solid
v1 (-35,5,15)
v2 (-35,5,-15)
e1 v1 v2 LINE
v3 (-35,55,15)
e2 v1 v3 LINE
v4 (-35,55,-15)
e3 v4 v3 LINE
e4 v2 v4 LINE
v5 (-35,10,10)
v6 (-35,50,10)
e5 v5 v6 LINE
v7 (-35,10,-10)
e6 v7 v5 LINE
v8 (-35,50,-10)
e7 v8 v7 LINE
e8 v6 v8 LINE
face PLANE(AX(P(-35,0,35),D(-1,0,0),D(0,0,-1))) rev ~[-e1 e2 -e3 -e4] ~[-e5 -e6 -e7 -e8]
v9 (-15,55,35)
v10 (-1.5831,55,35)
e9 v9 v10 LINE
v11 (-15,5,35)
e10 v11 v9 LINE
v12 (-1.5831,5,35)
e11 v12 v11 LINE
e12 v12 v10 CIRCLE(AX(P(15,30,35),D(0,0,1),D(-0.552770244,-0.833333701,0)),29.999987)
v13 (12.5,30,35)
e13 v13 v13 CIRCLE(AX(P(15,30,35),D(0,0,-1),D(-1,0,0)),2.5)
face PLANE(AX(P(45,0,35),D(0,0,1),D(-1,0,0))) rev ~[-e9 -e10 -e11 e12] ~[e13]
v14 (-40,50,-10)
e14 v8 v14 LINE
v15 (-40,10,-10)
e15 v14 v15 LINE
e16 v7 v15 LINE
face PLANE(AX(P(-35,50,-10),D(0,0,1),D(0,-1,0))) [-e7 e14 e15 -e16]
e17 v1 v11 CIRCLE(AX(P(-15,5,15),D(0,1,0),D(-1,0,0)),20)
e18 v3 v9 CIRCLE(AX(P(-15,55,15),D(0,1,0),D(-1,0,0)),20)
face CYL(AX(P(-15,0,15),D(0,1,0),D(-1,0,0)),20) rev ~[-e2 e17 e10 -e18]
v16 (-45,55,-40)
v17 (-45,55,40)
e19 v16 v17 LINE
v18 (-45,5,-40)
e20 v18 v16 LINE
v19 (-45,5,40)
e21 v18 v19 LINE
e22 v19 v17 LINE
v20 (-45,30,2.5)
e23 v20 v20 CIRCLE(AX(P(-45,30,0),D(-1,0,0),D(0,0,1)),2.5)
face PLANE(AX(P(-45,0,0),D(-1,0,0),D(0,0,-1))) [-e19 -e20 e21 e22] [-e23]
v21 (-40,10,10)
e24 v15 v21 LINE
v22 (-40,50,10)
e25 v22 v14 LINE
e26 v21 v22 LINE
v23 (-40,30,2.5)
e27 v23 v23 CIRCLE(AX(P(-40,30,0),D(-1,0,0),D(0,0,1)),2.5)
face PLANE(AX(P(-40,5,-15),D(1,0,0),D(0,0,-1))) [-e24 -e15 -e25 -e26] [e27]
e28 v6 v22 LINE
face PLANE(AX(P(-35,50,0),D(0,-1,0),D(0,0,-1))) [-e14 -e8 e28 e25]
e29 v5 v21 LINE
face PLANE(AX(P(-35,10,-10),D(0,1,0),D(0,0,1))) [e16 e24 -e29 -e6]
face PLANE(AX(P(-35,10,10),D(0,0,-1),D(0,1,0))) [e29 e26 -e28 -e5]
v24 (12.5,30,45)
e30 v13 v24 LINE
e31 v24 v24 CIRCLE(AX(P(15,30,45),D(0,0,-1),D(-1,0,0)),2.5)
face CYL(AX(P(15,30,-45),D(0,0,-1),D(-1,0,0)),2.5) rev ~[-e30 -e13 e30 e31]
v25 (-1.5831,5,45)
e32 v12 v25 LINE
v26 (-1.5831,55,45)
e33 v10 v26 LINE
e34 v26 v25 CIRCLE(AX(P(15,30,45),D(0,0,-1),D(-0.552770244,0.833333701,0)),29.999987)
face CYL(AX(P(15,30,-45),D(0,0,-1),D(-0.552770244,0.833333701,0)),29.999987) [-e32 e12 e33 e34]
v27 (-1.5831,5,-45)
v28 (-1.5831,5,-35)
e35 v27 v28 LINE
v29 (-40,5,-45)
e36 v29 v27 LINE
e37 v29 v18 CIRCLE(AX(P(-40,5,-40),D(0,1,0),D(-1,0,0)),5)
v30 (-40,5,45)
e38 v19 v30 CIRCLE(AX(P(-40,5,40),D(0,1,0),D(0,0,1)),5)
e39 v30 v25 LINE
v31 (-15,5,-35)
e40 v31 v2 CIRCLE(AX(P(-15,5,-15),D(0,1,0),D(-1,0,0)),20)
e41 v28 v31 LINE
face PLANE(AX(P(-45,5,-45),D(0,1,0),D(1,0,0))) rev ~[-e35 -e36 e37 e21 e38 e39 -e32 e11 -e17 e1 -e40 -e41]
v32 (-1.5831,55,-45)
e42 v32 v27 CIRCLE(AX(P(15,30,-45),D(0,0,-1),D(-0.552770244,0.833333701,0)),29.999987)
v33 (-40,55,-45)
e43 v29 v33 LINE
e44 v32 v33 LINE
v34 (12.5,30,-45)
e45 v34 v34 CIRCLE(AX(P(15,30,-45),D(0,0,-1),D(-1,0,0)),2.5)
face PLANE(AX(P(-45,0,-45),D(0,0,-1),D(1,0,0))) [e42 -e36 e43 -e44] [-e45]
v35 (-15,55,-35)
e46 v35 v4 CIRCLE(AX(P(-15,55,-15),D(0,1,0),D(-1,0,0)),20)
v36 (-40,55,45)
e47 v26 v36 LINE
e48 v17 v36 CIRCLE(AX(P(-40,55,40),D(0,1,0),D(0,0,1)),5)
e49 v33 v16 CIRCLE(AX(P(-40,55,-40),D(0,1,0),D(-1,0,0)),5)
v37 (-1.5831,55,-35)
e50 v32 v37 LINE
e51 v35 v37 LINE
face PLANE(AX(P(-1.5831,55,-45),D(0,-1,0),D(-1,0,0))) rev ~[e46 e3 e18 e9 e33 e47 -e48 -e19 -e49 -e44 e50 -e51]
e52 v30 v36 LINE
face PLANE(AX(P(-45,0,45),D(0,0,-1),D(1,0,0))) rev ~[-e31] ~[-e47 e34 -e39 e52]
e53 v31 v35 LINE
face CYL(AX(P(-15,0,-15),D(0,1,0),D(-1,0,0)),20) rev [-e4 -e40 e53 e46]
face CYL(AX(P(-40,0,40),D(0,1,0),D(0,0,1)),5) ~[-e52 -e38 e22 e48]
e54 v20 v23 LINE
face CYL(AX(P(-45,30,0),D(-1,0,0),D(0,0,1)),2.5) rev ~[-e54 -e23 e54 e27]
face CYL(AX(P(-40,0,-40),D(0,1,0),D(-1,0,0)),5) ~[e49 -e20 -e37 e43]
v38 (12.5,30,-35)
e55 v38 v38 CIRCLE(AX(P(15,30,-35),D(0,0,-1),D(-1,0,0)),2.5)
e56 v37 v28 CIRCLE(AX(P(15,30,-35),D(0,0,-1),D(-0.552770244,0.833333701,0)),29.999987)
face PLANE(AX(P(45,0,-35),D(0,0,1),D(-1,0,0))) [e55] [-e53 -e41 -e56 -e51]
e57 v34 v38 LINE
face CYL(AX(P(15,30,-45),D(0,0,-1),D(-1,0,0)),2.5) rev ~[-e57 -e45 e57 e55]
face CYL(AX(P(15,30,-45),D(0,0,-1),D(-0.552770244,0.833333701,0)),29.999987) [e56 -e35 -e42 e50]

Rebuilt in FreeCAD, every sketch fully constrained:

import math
import FreeCAD as App
import Part
import Sketcher
from FreeCAD import Vector


def edges_at(feature, points):
    """Names of the edges that pass closest to the given points."""
    edges = feature.Shape.Edges
    near = lambda p: min(range(len(edges)), key=lambda i: edges[i].distToShape(Part.Vertex(*p))[0])
    return sorted({f"Edge{near(p) + 1}" for p in points})


def add_polygon(sketch, points):
    """Adds a closed chain of lines whose ends are joined by coincident constraints."""
    first, n = sketch.GeometryCount, len(points)
    for a, b in zip(points, points[1:] + points[:1]):
        sketch.addGeometry(Part.LineSegment(App.Vector(*a, 0), App.Vector(*b, 0)), False)
    for i in range(n):
        sketch.addConstraint(Sketcher.Constraint("Coincident", first + i, 2, first + (i + 1) % n, 1))

doc = App.newDocument("Part")
params = doc.addObject("Spreadsheet::Sheet", "Params")
for row, (alias, value) in enumerate([
    ("sketch1_height", "10 mm"),
    ("pad1_length", "60 mm"),
    ("fillet_radius", "20 mm"),
    ("fillet2_radius", "5 mm"),
    ("sketch2_height", "5 mm"),
    ("sketch2_radius", "30 mm"),
    ("sketch2_width", "60 mm"),
    ("pocket1_length", "161.25 mm"),
    ("sketch3_diameter", "5 mm"),
    ("pocket2_length", "161.25 mm"),
    ("sketch4_diameter", "5 mm"),
    ("pocket3_length", "161.25 mm"),
    ("sketch5_width", "40 mm"),
    ("sketch5_height", "20 mm"),
    ("pocket4_length", "5 mm"),
], start=1):
    params.set(f"A{row}", alias)
    params.set(f"B{row}", "=" + value)
    params.setAlias(f"B{row}", alias)

body = doc.addObject("PartDesign::Body", "Body")

# Sketch on XZ plane
sketch1 = body.newObject("Sketcher::SketchObject", "Sketch")
sketch1.AttachmentSupport = (doc.getObject("XZ_Plane"), [""])
sketch1.MapMode = "FlatFace"
add_polygon(sketch1, [(-45, 45), (45, 45), (45, 35), (-35, 35), (-35, -35), (45, -35), (45, -45), (-45, -45)])  # lines 0-7
sketch1.addConstraint(Sketcher.Constraint("Horizontal", 0))
sketch1.addConstraint(Sketcher.Constraint("Vertical", 1))
sketch1.addConstraint(Sketcher.Constraint("Horizontal", 2))
sketch1.addConstraint(Sketcher.Constraint("Vertical", 3))
sketch1.addConstraint(Sketcher.Constraint("Horizontal", 4))
sketch1.addConstraint(Sketcher.Constraint("Vertical", 5))
sketch1.addConstraint(Sketcher.Constraint("Horizontal", 6))
sketch1.addConstraint(Sketcher.Constraint("Vertical", 7))
sketch1.addConstraint(Sketcher.Constraint("Symmetric", 0, 2, 6, 2, -1, 1))
sketch1.addConstraint(Sketcher.Constraint("Symmetric", 1, 2, 4, 2, -1))
sketch1.addConstraint(Sketcher.Constraint("Equal", 6, 7))
sketch1.addConstraint(Sketcher.Constraint("DistanceY", 1, 2, 1, 1, 10.0))
sketch1.addConstraint(Sketcher.Constraint("DistanceX", -1, 1, 0, 2, 45.0))
sketch1.addConstraint(Sketcher.Constraint("DistanceX", 6, 2, 3, 2, 10.0))
sketch1.setExpression("Constraints[19]", "Params.sketch1_height")
pad1 = body.newObject("PartDesign::Pad", "Pad")
pad1.Profile = sketch1
pad1.setExpression("Length", "Params.pad1_length")
pad1.Reversed = True
doc.recompute()

fillet = body.newObject("PartDesign::Fillet", "Fillet")
fillet.Base = (pad1, edges_at(pad1, [(-35, 30, 35), (-35, 30, -35)]))
fillet.setExpression("Radius", "Params.fillet_radius")
doc.recompute()

fillet2 = body.newObject("PartDesign::Fillet", "Fillet001")
fillet2.Base = (fillet, edges_at(fillet, [(-45, 30, 45), (-45, 30, -45)]))
fillet2.setExpression("Radius", "Params.fillet2_radius")

# Sketch on XY plane
sketch2 = body.newObject("Sketcher::SketchObject", "Sketch001")
sketch2.AttachmentSupport = (doc.getObject("XY_Plane"), [""])
sketch2.MapMode = "FlatFace"
sketch2.AttachmentOffset = App.Placement(Vector(0, 0, -45), App.Rotation())
sketch2.addGeometry(Part.LineSegment(Vector(45, 30, 0), Vector(45, 0, 0)), False)
sketch2.addGeometry(Part.LineSegment(Vector(45, 0, 0), Vector(15, 0, 0)), False)
sketch2.addGeometry(Part.ArcOfCircle(Part.Circle(Vector(15, 30, 0), Vector(0, 0, 1), 30), math.radians(-90), math.radians(0)), False)
sketch2.addGeometry(Part.LineSegment(Vector(45, 60, 0), Vector(45, 30, 0)), False)
sketch2.addGeometry(Part.ArcOfCircle(Part.Circle(Vector(15, 30, 0), Vector(0, 0, 1), 30), math.radians(0), math.radians(90)), False)
sketch2.addGeometry(Part.LineSegment(Vector(15, 60, 0), Vector(45, 60, 0)), False)
sketch2.addGeometry(Part.ArcOfCircle(Part.Circle(Vector(15, 30, 0), Vector(0, 0, 1), 30), math.radians(-124), math.radians(-90)), False)
sketch2.addGeometry(Part.LineSegment(Vector(15, 0, 0), Vector(-45, 0, 0)), False)
sketch2.addGeometry(Part.LineSegment(Vector(-45, 0, 0), Vector(-45, 5, 0)), False)
sketch2.addGeometry(Part.LineSegment(Vector(-45, 5, 0), Vector(-2, 5, 0)), False)
sketch2.addGeometry(Part.LineSegment(Vector(-45, 60, 0), Vector(15, 60, 0)), False)
sketch2.addGeometry(Part.ArcOfCircle(Part.Circle(Vector(15, 30, 0), Vector(0, 0, 1), 30), math.radians(90), math.radians(124)), False)
sketch2.addGeometry(Part.LineSegment(Vector(-2, 55, 0), Vector(-45, 55, 0)), False)
sketch2.addGeometry(Part.LineSegment(Vector(-45, 55, 0), Vector(-45, 60, 0)), False)
sketch2.addConstraint(Sketcher.Constraint("Coincident", 0, 2, 1, 1))
sketch2.addConstraint(Sketcher.Constraint("Tangent", 1, 2, 2, 1))
sketch2.addConstraint(Sketcher.Constraint("Tangent", 2, 2, 0, 1))
sketch2.addConstraint(Sketcher.Constraint("Tangent", 3, 2, 4, 1))
sketch2.addConstraint(Sketcher.Constraint("Tangent", 4, 2, 5, 1))
sketch2.addConstraint(Sketcher.Constraint("Coincident", 5, 2, 3, 1))
sketch2.addConstraint(Sketcher.Constraint("Tangent", 6, 2, 7, 1))
sketch2.addConstraint(Sketcher.Constraint("Coincident", 7, 2, 8, 1))
sketch2.addConstraint(Sketcher.Constraint("Coincident", 8, 2, 9, 1))
sketch2.addConstraint(Sketcher.Constraint("Coincident", 9, 2, 6, 1))
sketch2.addConstraint(Sketcher.Constraint("Tangent", 10, 2, 11, 1))
sketch2.addConstraint(Sketcher.Constraint("Coincident", 11, 2, 12, 1))
sketch2.addConstraint(Sketcher.Constraint("Coincident", 12, 2, 13, 1))
sketch2.addConstraint(Sketcher.Constraint("Coincident", 13, 2, 10, 1))
sketch2.addConstraint(Sketcher.Constraint("Vertical", 0))
sketch2.addConstraint(Sketcher.Constraint("Horizontal", 1))
sketch2.addConstraint(Sketcher.Constraint("Vertical", 3))
sketch2.addConstraint(Sketcher.Constraint("Horizontal", 5))
sketch2.addConstraint(Sketcher.Constraint("Horizontal", 7))
sketch2.addConstraint(Sketcher.Constraint("Vertical", 8))
sketch2.addConstraint(Sketcher.Constraint("Horizontal", 9))
sketch2.addConstraint(Sketcher.Constraint("Horizontal", 10))
sketch2.addConstraint(Sketcher.Constraint("Horizontal", 12))
sketch2.addConstraint(Sketcher.Constraint("Vertical", 13))
sketch2.addConstraint(Sketcher.Constraint("Coincident", 4, 3, 2, 3))
sketch2.addConstraint(Sketcher.Constraint("Coincident", 6, 3, 2, 3))
sketch2.addConstraint(Sketcher.Constraint("Coincident", 11, 3, 2, 3))
sketch2.addConstraint(Sketcher.Constraint("Equal", 2, 4))
sketch2.addConstraint(Sketcher.Constraint("Equal", 4, 6))
sketch2.addConstraint(Sketcher.Constraint("Equal", 6, 11))
sketch2.addConstraint(Sketcher.Constraint("Symmetric", 0, 2, 7, 2, -1, 1))
sketch2.addConstraint(Sketcher.Constraint("Vertical", 9, 2, 11, 2))
sketch2.addConstraint(Sketcher.Constraint("Vertical", 8, 2, 12, 2))
sketch2.addConstraint(Sketcher.Constraint("DistanceY", 8, 1, 8, 2, 5.0))
sketch2.addConstraint(Sketcher.Constraint("Radius", 2, 30.0))
sketch2.addConstraint(Sketcher.Constraint("DistanceX", 7, 2, 7, 1, 60.0))
sketch2.setExpression("Constraints[33]", "Params.sketch2_height")
sketch2.setExpression("Constraints[34]", "Params.sketch2_radius")
sketch2.setExpression("Constraints[35]", "Params.sketch2_width")
pocket1 = body.newObject("PartDesign::Pocket", "Pocket")
pocket1.Profile = sketch2
pocket1.setExpression("Length", "Params.pocket1_length")
pocket1.Reversed = True

# Sketch on XY plane
sketch3 = body.newObject("Sketcher::SketchObject", "Sketch002")
sketch3.AttachmentSupport = (doc.getObject("XY_Plane"), [""])
sketch3.MapMode = "FlatFace"
sketch3.AttachmentOffset = App.Placement(Vector(0, 0, -45), App.Rotation())
sketch3.addGeometry(Part.Circle(Vector(15, 30, 0), Vector(0, 0, 1), 2.5), False)
sketch3.addConstraint(Sketcher.Constraint("Diameter", 0, 5.0))
sketch3.addConstraint(Sketcher.Constraint("DistanceX", -1, 1, 0, 3, 15.0))
sketch3.addConstraint(Sketcher.Constraint("DistanceY", -1, 1, 0, 3, 30.0))
sketch3.setExpression("Constraints[0]", "Params.sketch3_diameter")
pocket2 = body.newObject("PartDesign::Pocket", "Pocket001")
pocket2.Profile = sketch3
pocket2.setExpression("Length", "Params.pocket2_length")
pocket2.Reversed = True

# Sketch on YZ plane
sketch4 = body.newObject("Sketcher::SketchObject", "Sketch003")
sketch4.AttachmentSupport = (doc.getObject("YZ_Plane"), [""])
sketch4.MapMode = "FlatFace"
sketch4.AttachmentOffset = App.Placement(Vector(0, 0, -45), App.Rotation())
sketch4.addGeometry(Part.Circle(Vector(30, 0, 0), Vector(0, 0, 1), 2.5), False)
sketch4.addConstraint(Sketcher.Constraint("PointOnObject", 0, 3, -1))
sketch4.addConstraint(Sketcher.Constraint("Diameter", 0, 5.0))
sketch4.addConstraint(Sketcher.Constraint("DistanceX", -1, 1, 0, 3, 30.0))
sketch4.setExpression("Constraints[1]", "Params.sketch4_diameter")
pocket3 = body.newObject("PartDesign::Pocket", "Pocket002")
pocket3.Profile = sketch4
pocket3.setExpression("Length", "Params.pocket3_length")
pocket3.Reversed = True

# Sketch on YZ plane
sketch5 = body.newObject("Sketcher::SketchObject", "Sketch004")
sketch5.AttachmentSupport = (doc.getObject("YZ_Plane"), [""])
sketch5.MapMode = "FlatFace"
sketch5.AttachmentOffset = App.Placement(Vector(0, 0, -35), App.Rotation())
add_polygon(sketch5, [(50, -10), (50, 10), (10, 10), (10, -10)])  # lines 0-3
sketch5.addConstraint(Sketcher.Constraint("Vertical", 0))
sketch5.addConstraint(Sketcher.Constraint("Horizontal", 1))
sketch5.addConstraint(Sketcher.Constraint("Vertical", 2))
sketch5.addConstraint(Sketcher.Constraint("Horizontal", 3))
sketch5.addConstraint(Sketcher.Constraint("DistanceX", 1, 2, 1, 1, 40.0))
sketch5.addConstraint(Sketcher.Constraint("DistanceY", 0, 1, 0, 2, 20.0))
sketch5.addConstraint(Sketcher.Constraint("DistanceY", -1, 1, 0, 2, 10.0))
sketch5.addConstraint(Sketcher.Constraint("DistanceX", -1, 1, 1, 2, 10.0))
sketch5.setExpression("Constraints[8]", "Params.sketch5_width")
sketch5.setExpression("Constraints[9]", "Params.sketch5_height")
pocket4 = body.newObject("PartDesign::Pocket", "Pocket003")
pocket4.Profile = sketch5
pocket4.setExpression("Length", "Params.pocket4_length")

doc.recompute()
